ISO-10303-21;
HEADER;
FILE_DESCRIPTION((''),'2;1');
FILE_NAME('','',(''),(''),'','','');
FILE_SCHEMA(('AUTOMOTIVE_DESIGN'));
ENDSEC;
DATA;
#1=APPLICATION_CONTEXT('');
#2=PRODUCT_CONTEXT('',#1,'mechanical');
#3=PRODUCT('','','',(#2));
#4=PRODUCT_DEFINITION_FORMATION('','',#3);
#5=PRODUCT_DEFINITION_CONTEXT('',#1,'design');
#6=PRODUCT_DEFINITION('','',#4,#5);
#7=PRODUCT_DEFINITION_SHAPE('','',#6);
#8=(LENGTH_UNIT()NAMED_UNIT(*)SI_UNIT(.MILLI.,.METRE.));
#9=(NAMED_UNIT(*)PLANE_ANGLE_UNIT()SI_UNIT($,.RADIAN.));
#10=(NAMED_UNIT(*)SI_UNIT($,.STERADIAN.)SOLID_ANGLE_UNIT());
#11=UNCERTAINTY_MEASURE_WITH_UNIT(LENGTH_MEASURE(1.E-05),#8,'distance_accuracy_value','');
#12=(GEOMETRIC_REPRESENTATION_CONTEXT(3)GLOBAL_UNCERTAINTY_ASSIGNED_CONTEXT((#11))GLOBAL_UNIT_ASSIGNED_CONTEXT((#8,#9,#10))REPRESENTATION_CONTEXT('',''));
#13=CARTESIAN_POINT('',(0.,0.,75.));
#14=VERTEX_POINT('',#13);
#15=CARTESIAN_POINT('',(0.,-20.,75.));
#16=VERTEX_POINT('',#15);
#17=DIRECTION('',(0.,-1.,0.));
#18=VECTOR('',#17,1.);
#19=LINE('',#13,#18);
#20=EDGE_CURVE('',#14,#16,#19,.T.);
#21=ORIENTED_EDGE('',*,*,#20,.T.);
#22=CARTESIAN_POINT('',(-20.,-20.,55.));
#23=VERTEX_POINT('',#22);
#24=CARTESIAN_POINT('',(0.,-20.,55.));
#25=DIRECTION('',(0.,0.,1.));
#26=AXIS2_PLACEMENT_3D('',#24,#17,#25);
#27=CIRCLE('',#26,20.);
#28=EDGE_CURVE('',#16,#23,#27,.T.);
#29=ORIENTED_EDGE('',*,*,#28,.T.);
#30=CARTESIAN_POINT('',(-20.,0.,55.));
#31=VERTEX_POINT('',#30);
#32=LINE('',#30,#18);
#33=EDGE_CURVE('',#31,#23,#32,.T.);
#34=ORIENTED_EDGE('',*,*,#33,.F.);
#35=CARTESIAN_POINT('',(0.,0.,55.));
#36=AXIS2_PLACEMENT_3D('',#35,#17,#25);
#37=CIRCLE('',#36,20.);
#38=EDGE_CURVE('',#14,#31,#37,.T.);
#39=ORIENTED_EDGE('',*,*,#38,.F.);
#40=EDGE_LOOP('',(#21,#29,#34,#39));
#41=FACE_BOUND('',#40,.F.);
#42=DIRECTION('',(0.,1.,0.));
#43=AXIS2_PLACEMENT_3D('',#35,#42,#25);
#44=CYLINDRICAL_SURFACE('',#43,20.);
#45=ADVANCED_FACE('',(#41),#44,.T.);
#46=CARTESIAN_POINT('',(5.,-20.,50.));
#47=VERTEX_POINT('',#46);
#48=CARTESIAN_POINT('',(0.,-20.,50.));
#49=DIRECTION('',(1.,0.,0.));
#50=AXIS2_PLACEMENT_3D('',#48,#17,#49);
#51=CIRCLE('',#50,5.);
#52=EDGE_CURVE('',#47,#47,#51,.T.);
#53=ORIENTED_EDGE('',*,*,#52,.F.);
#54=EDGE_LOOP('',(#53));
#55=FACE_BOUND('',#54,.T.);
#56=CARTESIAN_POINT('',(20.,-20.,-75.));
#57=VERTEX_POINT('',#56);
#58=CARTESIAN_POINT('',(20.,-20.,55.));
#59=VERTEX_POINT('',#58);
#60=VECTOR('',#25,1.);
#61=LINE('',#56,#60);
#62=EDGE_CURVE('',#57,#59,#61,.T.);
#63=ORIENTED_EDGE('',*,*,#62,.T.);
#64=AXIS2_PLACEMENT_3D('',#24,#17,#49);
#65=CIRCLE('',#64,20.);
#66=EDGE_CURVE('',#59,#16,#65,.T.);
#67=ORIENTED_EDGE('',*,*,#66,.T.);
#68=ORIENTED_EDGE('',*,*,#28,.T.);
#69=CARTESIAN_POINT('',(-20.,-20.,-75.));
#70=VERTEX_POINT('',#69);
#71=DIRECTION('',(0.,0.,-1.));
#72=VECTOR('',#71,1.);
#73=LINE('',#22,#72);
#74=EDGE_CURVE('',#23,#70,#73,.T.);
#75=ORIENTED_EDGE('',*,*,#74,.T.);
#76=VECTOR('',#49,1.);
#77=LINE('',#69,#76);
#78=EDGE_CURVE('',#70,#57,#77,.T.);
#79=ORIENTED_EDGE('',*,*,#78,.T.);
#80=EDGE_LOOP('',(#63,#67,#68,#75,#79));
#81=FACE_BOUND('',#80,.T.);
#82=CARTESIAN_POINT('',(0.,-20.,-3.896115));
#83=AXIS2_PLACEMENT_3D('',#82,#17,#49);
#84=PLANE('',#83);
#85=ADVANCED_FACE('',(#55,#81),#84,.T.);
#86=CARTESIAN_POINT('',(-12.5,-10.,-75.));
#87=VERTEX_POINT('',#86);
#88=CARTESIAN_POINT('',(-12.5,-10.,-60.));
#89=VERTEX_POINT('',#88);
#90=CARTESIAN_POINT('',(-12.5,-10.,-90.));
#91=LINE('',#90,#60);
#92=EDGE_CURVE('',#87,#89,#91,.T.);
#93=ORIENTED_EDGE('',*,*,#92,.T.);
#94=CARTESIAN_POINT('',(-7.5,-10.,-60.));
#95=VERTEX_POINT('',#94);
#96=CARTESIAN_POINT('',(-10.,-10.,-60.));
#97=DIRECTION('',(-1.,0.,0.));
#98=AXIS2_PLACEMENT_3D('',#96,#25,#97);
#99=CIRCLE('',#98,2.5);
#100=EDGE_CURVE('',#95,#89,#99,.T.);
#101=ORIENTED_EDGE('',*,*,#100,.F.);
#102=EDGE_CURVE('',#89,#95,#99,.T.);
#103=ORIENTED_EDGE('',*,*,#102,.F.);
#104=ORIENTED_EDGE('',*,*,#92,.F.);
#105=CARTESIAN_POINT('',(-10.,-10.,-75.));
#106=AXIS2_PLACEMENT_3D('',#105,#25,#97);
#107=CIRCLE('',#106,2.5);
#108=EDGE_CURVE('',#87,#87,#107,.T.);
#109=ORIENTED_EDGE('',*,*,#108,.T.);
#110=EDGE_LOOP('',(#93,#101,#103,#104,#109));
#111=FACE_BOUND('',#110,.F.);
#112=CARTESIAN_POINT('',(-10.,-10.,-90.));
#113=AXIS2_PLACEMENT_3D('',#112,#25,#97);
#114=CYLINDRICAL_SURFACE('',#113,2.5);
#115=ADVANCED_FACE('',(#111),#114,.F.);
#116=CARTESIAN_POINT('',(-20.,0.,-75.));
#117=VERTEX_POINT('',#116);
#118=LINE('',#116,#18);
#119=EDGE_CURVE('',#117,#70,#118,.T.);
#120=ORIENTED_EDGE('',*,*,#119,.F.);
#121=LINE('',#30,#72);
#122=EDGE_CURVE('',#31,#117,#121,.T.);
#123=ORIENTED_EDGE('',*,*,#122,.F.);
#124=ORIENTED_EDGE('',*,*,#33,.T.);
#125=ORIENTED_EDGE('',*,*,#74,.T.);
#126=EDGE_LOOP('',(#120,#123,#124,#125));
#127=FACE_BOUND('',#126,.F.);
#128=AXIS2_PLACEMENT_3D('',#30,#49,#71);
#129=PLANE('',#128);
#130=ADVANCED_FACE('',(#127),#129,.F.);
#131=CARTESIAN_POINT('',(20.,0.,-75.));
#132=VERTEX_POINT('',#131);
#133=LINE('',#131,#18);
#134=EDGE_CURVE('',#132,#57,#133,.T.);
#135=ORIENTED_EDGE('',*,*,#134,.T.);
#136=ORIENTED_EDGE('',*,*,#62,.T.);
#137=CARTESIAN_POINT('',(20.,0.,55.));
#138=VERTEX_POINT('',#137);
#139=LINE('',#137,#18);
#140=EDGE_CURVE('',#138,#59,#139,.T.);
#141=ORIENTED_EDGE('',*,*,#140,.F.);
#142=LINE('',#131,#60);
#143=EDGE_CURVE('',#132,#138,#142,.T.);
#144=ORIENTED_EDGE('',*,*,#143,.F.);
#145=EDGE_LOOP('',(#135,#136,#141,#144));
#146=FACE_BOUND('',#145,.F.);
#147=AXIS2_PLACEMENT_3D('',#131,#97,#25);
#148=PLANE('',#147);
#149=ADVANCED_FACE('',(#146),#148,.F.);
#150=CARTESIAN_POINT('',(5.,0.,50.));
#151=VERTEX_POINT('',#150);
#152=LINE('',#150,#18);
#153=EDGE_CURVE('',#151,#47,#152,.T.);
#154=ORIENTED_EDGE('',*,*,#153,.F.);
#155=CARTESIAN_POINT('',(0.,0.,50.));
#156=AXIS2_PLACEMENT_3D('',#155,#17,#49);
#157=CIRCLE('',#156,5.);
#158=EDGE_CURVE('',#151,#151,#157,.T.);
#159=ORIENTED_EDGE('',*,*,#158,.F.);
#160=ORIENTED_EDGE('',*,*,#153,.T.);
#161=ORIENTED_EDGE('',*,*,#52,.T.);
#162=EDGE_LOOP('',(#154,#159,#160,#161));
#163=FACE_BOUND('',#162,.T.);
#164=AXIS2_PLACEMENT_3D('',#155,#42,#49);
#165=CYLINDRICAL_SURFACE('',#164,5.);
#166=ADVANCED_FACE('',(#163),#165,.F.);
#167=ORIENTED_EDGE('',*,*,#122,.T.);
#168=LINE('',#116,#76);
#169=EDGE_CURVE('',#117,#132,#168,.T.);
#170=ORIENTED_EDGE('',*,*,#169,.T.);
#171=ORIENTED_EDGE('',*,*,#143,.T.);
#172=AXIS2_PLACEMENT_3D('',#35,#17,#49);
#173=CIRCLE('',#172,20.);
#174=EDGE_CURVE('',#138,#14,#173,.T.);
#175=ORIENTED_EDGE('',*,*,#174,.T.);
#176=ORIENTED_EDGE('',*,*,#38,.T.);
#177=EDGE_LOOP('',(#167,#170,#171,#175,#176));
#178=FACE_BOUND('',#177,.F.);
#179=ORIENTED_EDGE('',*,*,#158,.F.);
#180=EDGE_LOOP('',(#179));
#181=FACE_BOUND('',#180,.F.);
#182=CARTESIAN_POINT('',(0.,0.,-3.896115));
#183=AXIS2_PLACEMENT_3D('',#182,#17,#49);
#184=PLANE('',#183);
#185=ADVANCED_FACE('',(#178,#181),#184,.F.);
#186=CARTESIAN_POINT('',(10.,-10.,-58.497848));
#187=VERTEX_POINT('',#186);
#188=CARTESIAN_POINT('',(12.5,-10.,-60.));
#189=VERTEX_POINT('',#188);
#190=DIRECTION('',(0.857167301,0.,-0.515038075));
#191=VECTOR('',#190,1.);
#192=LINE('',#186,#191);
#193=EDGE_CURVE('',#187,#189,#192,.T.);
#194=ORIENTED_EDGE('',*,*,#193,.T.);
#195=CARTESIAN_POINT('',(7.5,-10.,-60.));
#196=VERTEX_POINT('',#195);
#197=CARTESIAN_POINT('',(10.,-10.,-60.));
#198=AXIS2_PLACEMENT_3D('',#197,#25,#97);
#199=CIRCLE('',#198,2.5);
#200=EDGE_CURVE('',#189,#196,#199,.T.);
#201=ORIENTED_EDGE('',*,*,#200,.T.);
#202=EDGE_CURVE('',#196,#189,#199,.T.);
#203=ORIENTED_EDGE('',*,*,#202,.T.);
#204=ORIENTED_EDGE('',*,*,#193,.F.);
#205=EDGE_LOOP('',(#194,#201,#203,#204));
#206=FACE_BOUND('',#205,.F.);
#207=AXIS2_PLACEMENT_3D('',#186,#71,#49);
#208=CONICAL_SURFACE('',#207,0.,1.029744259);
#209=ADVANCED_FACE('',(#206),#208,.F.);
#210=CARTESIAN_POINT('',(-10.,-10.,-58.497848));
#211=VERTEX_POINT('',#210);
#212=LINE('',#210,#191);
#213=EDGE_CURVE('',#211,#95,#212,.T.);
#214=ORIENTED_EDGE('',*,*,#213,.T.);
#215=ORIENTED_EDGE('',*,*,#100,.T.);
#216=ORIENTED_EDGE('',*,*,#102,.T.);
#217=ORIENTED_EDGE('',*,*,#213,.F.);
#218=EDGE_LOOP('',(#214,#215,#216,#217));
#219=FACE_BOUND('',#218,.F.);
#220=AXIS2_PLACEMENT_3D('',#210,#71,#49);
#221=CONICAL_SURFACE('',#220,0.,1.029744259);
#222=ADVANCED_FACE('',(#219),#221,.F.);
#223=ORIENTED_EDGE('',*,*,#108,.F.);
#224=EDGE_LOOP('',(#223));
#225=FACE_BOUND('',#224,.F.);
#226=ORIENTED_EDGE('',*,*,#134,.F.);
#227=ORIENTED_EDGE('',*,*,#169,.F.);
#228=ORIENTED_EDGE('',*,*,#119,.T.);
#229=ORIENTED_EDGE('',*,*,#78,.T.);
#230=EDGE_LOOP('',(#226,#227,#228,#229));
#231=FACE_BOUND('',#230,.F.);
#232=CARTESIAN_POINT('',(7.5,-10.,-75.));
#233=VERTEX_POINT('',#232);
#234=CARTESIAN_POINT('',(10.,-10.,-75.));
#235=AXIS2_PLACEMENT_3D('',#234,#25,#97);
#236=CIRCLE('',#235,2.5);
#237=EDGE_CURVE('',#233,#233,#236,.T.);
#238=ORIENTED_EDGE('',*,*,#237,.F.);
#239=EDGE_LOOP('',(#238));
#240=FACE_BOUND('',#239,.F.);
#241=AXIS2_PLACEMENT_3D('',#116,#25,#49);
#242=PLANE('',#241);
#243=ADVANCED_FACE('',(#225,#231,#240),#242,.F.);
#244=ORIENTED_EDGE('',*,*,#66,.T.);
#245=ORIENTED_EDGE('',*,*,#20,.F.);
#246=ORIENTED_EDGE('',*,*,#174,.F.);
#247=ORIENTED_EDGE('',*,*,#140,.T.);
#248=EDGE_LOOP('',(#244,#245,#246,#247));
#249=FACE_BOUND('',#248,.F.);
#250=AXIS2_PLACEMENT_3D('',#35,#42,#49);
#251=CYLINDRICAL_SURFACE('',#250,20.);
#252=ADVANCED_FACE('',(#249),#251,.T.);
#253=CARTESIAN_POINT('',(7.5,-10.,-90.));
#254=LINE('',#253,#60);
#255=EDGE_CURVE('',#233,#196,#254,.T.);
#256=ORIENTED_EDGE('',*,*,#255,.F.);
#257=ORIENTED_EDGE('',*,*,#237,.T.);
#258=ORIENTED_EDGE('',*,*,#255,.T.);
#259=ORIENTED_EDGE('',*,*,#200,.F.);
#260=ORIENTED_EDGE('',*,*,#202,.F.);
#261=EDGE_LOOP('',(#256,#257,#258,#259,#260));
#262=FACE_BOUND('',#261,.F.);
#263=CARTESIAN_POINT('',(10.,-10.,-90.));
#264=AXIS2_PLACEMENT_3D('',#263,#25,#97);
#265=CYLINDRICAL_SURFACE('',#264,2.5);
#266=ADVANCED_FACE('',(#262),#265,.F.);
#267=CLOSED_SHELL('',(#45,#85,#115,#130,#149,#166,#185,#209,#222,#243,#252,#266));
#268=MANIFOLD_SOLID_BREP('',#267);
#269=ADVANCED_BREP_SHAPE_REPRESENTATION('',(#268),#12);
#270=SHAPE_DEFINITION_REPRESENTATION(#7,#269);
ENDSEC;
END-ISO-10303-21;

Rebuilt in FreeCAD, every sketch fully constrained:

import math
import FreeCAD as App
import Part
import Sketcher
from FreeCAD import Vector

doc = App.newDocument("Part")
params = doc.addObject("Spreadsheet::Sheet", "Params")
for row, (alias, value) in enumerate([
    ("sketch1_diameter", "10 mm"),
    ("sketch1_radius", "20 mm"),
    ("sketch1_height", "130 mm"),
    ("pad1_length", "20 mm"),
    ("sketch2_diameter", "5 mm"),
    ("hole_diameter", "5 mm"),
    ("hole_depth", "15 mm"),
], start=1):
    params.set(f"A{row}", alias)
    params.set(f"B{row}", "=" + value)
    params.setAlias(f"B{row}", alias)

body = doc.addObject("PartDesign::Body", "Body")

sketch1 = body.newObject("Sketcher::SketchObject", "Sketch")
sketch1.AttachmentSupport = (doc.getObject("XZ_Plane"), [""])
sketch1.MapMode = "FlatFace"
sketch1.addGeometry(Part.LineSegment(Vector(-20, -75, 0), Vector(20, -75, 0)), False)
sketch1.addGeometry(Part.LineSegment(Vector(20, -75, 0), Vector(20, 55, 0)), False)
sketch1.addGeometry(Part.ArcOfCircle(Part.Circle(Vector(0, 55, 0), Vector(0, 0, 1), 20), math.radians(0), math.radians(90)), False)
sketch1.addGeometry(Part.ArcOfCircle(Part.Circle(Vector(0, 55, 0), Vector(0, 0, 1), 20), math.radians(90), math.radians(180)), False)
sketch1.addGeometry(Part.LineSegment(Vector(-20, 55, 0), Vector(-20, -75, 0)), False)
sketch1.addGeometry(Part.Circle(Vector(0, 50, 0), Vector(0, 0, 1), 5), False)
sketch1.addConstraint(Sketcher.Constraint("Coincident", 0, 2, 1, 1))
sketch1.addConstraint(Sketcher.Constraint("Tangent", 1, 2, 2, 1))
sketch1.addConstraint(Sketcher.Constraint("Tangent", 2, 2, 3, 1))
sketch1.addConstraint(Sketcher.Constraint("Tangent", 3, 2, 4, 1))
sketch1.addConstraint(Sketcher.Constraint("Coincident", 4, 2, 0, 1))
sketch1.addConstraint(Sketcher.Constraint("Horizontal", 0))
sketch1.addConstraint(Sketcher.Constraint("Vertical", 1))
sketch1.addConstraint(Sketcher.Constraint("Vertical", 4))
sketch1.addConstraint(Sketcher.Constraint("Equal", 2, 3))
sketch1.addConstraint(Sketcher.Constraint("PointOnObject", 2, 3, -2))
sketch1.addConstraint(Sketcher.Constraint("PointOnObject", 5, 3, -2))
sketch1.addConstraint(Sketcher.Constraint("PointOnObject", 2, 2, -2))
sketch1.addConstraint(Sketcher.Constraint("Diameter", 5, 10.0))
sketch1.addConstraint(Sketcher.Constraint("Radius", 2, 20.0))
sketch1.addConstraint(Sketcher.Constraint("DistanceY", 1, 1, 1, 2, 130.0))
sketch1.addConstraint(Sketcher.Constraint("DistanceY", -1, 1, 2, 3, 55.0))
sketch1.addConstraint(Sketcher.Constraint("DistanceY", -1, 1, 5, 3, 50.0))
sketch1.setExpression("Constraints[12]", "Params.sketch1_diameter")
sketch1.setExpression("Constraints[13]", "Params.sketch1_radius")
sketch1.setExpression("Constraints[14]", "Params.sketch1_height")
pad1 = body.newObject("PartDesign::Pad", "Pad")
pad1.Profile = sketch1
pad1.setExpression("Length", "Params.pad1_length")

sketch2 = body.newObject("Sketcher::SketchObject", "Sketch001")
sketch2.AttachmentSupport = (doc.getObject("XY_Plane"), [""])
sketch2.MapMode = "FlatFace"
sketch2.AttachmentOffset = App.Placement(Vector(0, 0, -75), App.Rotation())
sketch2.addGeometry(Part.Circle(Vector(-10, -10, 0), Vector(0, 0, 1), 2.5), False)
sketch2.addGeometry(Part.Circle(Vector(10, -10, 0), Vector(0, 0, 1), 2.5), False)
sketch2.addConstraint(Sketcher.Constraint("Equal", 0, 1))
sketch2.addConstraint(Sketcher.Constraint("Symmetric", 0, 3, 1, 3, -2))
sketch2.addConstraint(Sketcher.Constraint("Diameter", 0, 5.0))
sketch2.addConstraint(Sketcher.Constraint("DistanceX", 0, 3, -1, 1, 10.0))
sketch2.addConstraint(Sketcher.Constraint("DistanceY", 0, 3, -1, 1, 10.0))
sketch2.setExpression("Constraints[2]", "Params.sketch2_diameter")
doc.recompute()
hole = body.newObject("PartDesign::Hole", "Hole")
hole.Profile = sketch2
hole.ThreadType = "None"
hole.setExpression("Diameter", "Params.hole_diameter")
hole.DepthType = "Dimension"
hole.setExpression("Depth", "Params.hole_depth")
hole.DrillPoint = "Angled"
hole.DrillPointAngle = 118
hole.Reversed = True

doc.recompute()
